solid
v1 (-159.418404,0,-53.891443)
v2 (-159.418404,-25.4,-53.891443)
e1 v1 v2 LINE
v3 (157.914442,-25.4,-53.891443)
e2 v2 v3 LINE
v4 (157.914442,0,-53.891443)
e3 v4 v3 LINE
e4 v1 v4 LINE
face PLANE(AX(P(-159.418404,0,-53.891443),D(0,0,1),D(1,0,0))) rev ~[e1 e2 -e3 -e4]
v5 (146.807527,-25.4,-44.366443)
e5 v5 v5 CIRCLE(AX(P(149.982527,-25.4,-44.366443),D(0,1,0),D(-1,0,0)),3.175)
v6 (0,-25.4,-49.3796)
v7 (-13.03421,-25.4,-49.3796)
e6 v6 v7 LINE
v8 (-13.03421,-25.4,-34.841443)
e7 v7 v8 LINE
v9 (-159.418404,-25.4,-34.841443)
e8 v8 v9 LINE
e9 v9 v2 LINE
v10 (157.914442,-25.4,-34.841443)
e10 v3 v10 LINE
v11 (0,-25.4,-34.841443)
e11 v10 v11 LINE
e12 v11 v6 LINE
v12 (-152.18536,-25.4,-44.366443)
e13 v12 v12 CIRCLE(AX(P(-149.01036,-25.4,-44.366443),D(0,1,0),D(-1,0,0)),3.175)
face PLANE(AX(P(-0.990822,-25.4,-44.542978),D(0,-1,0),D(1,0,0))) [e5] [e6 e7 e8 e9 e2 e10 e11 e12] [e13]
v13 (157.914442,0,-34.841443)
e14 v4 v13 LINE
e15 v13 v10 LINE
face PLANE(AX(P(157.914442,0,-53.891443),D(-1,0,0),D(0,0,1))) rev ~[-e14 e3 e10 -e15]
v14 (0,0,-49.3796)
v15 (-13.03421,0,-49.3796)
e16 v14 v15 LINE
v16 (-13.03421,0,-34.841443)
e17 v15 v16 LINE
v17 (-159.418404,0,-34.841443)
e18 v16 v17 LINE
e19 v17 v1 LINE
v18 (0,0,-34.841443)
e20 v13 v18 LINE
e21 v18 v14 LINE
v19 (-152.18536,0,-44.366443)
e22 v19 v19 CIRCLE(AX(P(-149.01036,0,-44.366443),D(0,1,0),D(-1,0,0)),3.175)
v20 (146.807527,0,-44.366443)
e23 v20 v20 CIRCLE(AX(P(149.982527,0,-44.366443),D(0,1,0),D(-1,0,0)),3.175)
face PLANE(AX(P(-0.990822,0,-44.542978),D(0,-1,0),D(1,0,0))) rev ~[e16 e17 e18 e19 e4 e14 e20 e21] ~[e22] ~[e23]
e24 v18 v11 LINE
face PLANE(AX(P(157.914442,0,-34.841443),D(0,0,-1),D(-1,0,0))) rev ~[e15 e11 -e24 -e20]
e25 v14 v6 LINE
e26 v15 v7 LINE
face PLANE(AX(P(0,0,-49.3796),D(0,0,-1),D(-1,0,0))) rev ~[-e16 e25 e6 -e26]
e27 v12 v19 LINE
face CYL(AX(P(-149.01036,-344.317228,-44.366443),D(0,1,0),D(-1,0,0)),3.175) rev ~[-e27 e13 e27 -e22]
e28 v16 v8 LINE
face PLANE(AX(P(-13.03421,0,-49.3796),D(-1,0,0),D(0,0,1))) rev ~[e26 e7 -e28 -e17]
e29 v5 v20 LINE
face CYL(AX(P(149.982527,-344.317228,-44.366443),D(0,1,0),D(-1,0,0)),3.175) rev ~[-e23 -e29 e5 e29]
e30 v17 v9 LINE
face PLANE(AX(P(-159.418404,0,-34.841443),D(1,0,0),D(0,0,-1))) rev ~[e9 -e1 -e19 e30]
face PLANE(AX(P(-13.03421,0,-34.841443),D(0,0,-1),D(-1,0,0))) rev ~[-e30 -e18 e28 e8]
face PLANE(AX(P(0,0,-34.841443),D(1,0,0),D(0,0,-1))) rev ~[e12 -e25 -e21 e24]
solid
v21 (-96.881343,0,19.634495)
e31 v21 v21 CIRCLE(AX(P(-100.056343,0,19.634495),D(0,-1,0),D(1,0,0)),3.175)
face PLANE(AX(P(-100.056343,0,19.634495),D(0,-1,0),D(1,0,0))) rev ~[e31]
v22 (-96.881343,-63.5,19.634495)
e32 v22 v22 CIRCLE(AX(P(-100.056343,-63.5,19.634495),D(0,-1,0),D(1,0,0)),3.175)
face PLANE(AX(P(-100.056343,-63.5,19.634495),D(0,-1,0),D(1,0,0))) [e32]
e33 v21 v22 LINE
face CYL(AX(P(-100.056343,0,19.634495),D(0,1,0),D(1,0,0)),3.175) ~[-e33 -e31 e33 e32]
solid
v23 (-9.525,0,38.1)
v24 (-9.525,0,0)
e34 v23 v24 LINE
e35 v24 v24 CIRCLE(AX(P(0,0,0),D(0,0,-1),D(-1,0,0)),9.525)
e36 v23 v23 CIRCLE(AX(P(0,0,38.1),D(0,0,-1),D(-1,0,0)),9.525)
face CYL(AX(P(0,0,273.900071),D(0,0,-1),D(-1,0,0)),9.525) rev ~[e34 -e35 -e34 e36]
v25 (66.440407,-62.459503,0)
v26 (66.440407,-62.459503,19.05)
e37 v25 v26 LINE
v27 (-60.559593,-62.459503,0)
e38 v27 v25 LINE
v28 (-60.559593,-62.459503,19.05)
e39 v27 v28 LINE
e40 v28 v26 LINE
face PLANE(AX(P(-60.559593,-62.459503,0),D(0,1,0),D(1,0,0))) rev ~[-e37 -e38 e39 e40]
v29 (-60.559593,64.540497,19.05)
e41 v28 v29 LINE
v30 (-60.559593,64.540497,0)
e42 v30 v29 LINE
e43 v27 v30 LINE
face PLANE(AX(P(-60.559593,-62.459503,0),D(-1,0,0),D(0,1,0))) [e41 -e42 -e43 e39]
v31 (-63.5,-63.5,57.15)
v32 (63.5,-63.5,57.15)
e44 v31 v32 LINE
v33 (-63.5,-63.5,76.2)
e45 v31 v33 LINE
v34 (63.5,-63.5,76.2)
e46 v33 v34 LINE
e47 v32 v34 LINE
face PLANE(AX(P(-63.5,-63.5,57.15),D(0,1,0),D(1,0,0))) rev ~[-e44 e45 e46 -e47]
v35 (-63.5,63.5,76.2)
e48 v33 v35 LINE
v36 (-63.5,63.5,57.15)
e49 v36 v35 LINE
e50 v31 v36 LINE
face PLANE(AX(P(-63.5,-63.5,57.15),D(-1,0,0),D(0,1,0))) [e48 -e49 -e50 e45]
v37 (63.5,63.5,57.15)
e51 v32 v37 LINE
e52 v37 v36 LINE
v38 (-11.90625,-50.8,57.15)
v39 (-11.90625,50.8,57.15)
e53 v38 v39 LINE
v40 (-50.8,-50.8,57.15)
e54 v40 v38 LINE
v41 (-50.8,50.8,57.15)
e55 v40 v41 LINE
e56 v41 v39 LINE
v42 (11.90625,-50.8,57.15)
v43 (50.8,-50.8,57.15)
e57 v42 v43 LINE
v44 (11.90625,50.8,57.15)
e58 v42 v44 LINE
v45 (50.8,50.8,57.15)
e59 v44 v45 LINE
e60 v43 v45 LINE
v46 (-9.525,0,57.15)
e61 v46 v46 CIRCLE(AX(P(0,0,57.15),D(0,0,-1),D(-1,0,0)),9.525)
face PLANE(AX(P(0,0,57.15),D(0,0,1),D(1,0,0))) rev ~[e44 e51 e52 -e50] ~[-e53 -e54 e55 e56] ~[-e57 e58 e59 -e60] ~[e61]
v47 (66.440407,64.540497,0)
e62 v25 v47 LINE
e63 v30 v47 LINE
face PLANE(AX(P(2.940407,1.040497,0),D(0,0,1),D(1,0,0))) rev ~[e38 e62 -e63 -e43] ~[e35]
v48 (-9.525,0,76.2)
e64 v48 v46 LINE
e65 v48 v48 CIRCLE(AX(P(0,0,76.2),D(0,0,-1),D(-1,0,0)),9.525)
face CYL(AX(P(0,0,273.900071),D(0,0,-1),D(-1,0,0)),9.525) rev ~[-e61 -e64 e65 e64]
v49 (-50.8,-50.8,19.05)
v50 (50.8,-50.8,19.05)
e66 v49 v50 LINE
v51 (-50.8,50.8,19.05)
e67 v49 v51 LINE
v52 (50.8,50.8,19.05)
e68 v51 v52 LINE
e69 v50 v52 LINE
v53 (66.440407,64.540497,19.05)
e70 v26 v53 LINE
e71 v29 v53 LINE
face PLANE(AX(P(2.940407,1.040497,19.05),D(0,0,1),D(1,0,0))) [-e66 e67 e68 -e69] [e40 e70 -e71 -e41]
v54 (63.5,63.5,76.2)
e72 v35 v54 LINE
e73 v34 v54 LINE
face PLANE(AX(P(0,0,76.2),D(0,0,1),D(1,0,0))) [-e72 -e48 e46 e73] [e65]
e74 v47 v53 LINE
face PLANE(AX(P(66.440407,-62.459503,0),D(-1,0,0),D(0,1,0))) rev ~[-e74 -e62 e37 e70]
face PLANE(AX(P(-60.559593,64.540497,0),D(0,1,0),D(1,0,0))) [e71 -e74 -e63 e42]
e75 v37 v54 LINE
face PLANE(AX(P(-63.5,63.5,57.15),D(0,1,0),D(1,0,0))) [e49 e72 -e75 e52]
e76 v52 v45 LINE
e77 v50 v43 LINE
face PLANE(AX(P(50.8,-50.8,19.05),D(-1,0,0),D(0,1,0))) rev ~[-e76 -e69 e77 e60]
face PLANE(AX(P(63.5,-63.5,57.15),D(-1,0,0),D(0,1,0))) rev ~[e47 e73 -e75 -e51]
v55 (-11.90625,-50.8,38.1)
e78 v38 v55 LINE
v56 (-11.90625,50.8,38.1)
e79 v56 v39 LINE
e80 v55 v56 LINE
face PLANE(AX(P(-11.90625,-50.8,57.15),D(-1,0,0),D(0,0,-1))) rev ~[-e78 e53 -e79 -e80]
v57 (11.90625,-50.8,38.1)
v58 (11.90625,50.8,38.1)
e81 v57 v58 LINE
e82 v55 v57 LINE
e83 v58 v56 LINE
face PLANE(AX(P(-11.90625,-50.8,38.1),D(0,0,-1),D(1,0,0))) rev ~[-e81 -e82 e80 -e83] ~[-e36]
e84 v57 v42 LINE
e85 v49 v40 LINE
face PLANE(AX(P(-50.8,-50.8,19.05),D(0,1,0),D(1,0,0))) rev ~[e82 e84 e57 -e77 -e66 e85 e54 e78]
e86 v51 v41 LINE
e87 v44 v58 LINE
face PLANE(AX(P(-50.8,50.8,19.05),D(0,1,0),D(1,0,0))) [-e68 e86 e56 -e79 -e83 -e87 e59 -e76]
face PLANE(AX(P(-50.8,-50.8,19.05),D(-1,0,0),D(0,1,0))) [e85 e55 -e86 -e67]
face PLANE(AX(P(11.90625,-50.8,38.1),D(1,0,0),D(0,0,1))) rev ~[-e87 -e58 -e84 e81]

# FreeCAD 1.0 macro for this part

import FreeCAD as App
import Part
import Sketcher
Q = App.Units.Quantity


def add_polygon(sketch, points):
    """Adds a closed chain of lines whose ends are joined by coincident constraints."""
    first, n = sketch.GeometryCount, len(points)
    for a, b in zip(points, points[1:] + points[:1]):
        sketch.addGeometry(Part.LineSegment(App.Vector(*a, 0), App.Vector(*b, 0)), False)
    for i in range(n):
        sketch.addConstraint(Sketcher.Constraint("Coincident", first + i, 2, first + (i + 1) % n, 1))

doc = App.newDocument("Part")
body = doc.addObject("PartDesign::Body", "Body")

sketch1 = doc.addObject("Sketcher::SketchObject", "Sketch")
body.addObject(sketch1)
sketch1.AttachmentSupport = (doc.XY_Plane, [""])
sketch1.MapMode = "FlatFace"
add_polygon(sketch1, [(-61, 65), (-61, -62), (66, -62), (66, 65)])
sketch1.addConstraint([
    Sketcher.Constraint("Vertical", 0),
    Sketcher.Constraint("Horizontal", 1),
    Sketcher.Constraint("Vertical", 2),
    Sketcher.Constraint("Horizontal", 3),
    Sketcher.Constraint("Equal", 3, 0),
    Sketcher.Constraint("DistanceX", 1, 1, 1, 2, Q("5 in")),
    Sketcher.Constraint("DistanceX", 0, 2, -1, 1, Q("60.559593 mm")),
    Sketcher.Constraint("DistanceY", 0, 2, -1, 1, Q("62.459503 mm")),
])
pad1 = doc.addObject("PartDesign::Pad", "Pad")
body.addObject(pad1)
pad1.Profile = sketch1
pad1.Length = Q("0.75 in")

sketch2 = doc.addObject("Sketcher::SketchObject", "Sketch001")
body.addObject(sketch2)
sketch2.AttachmentSupport = (doc.XY_Plane, [""])
sketch2.MapMode = "FlatFace"
sketch2.AttachmentOffset = App.Placement(App.Vector(0, 0, 0.75 * 25.4), App.Rotation())
add_polygon(sketch2, [(-51, 51), (-51, -51), (51, -51), (51, 51)])
sketch2.addConstraint([
    Sketcher.Constraint("Vertical", 0),
    Sketcher.Constraint("Horizontal", 1),
    Sketcher.Constraint("Vertical", 2),
    Sketcher.Constraint("Horizontal", 3),
    Sketcher.Constraint("Symmetric", 0, 2, 2, 2, -1, 1),
    Sketcher.Constraint("Equal", 3, 0),
    Sketcher.Constraint("DistanceX", 1, 1, 1, 2, Q("4 in")),
])
pad2 = doc.addObject("PartDesign::Pad", "Pad001")
body.addObject(pad2)
pad2.Profile = sketch2
pad2.Length = Q("1.5 in")

sketch3 = doc.addObject("Sketcher::SketchObject", "Sketch002")
body.addObject(sketch3)
sketch3.AttachmentSupport = (doc.XY_Plane, [""])
sketch3.MapMode = "FlatFace"
sketch3.AttachmentOffset = App.Placement(App.Vector(0, 0, 2.25 * 25.4), App.Rotation())
add_polygon(sketch3, [(-64, 64), (-64, -64), (64, -64), (64, 64)])
sketch3.addConstraint([
    Sketcher.Constraint("Vertical", 0),
    Sketcher.Constraint("Horizontal", 1),
    Sketcher.Constraint("Vertical", 2),
    Sketcher.Constraint("Horizontal", 3),
    Sketcher.Constraint("Symmetric", 0, 2, 2, 2, -1, 1),
    Sketcher.Constraint("Equal", 3, 0),
    Sketcher.Constraint("DistanceX", 1, 1, 1, 2, Q("5 in")),
])
pad3 = doc.addObject("PartDesign::Pad", "Pad002")
body.addObject(pad3)
pad3.Profile = sketch3
pad3.Length = Q("0.75 in")

sketch4 = doc.addObject("Sketcher::SketchObject", "Sketch003")
body.addObject(sketch4)
sketch4.AttachmentSupport = (doc.XY_Plane, [""])
sketch4.MapMode = "FlatFace"
sketch4.AttachmentOffset = App.Placement(App.Vector(0, 0, 3 * 25.4), App.Rotation())
sketch4.addGeometry(Part.Circle(App.Vector(0, 0, 0), App.Vector(0, 0, 1), 10), False)
sketch4.addConstraint([
    Sketcher.Constraint("Coincident", 0, 3, -1, 1),
    Sketcher.Constraint("Diameter", 0, Q("0.75 in")),
])
doc.recompute()
hole = doc.addObject("PartDesign::Hole", "Hole")
body.addObject(hole)
hole.Profile = sketch4
hole.ThreadType = "None"
hole.Diameter = Q("0.75 in")
hole.DepthType = "ThroughAll"

sketch5 = doc.addObject("Sketcher::SketchObject", "Sketch004")
body.addObject(sketch5)
sketch5.AttachmentSupport = (doc.XZ_Plane, [""])
sketch5.MapMode = "FlatFace"
sketch5.AttachmentOffset = App.Placement(App.Vector(0, 0, 2 * 25.4), App.Rotation())
add_polygon(sketch5, [(-12, 38), (12, 38), (12, 57), (-12, 57)])
sketch5.addConstraint([
    Sketcher.Constraint("Horizontal", 0),
    Sketcher.Constraint("Vertical", 1),
    Sketcher.Constraint("Horizontal", 2),
    Sketcher.Constraint("Vertical", 3),
    Sketcher.Constraint("DistanceY", 1, 1, 1, 2, Q("0.75 in")),
    Sketcher.Constraint("DistanceY", -1, 1, 0, 2, Q("1.5 in")),
    Sketcher.Constraint("DistanceX", 0, 1, 0, 2, Q("0.9375 in")),
    Sketcher.Constraint("DistanceX", -1, 1, 0, 2, Q("0.46875 in")),
])
pocket1 = doc.addObject("PartDesign::Pocket", "Pocket")
body.addObject(pocket1)
pocket1.Profile = sketch5
pocket1.Type = "ThroughAll"
body2 = doc.addObject("PartDesign::Body", "Body001")

sketch6 = doc.addObject("Sketcher::SketchObject", "Sketch005")
body2.addObject(sketch6)
sketch6.AttachmentSupport = (doc.getObject("XZ_Plane001"), [""])
sketch6.MapMode = "FlatFace"
add_polygon(sketch6, [(158, -54), (158, -35), (0, -35), (0, -49), (-13, -49), (-13, -35), (-159, -35), (-159, -54)])
sketch6.addConstraint([
    Sketcher.Constraint("Vertical", 0),
    Sketcher.Constraint("Horizontal", 1),
    Sketcher.Constraint("Vertical", 2),
    Sketcher.Constraint("Horizontal", 3),
    Sketcher.Constraint("Vertical", 4),
    Sketcher.Constraint("Horizontal", 5),
    Sketcher.Constraint("Vertical", 6),
    Sketcher.Constraint("Horizontal", 7),
    Sketcher.Constraint("PointOnObject", 1, 2, -2),
    Sketcher.Constraint("Horizontal", 1, 2, 4, 2),
    Sketcher.Constraint("DistanceY", 0, 1, 0, 2, Q("0.75 in")),
    Sketcher.Constraint("DistanceX", 3, 2, 3, 1, Q("13.03421 mm")),
    Sketcher.Constraint("DistanceY", 2, 2, -1, 1, Q("49.3796 mm")),
    Sketcher.Constraint("DistanceX", 1, 2, 1, 1, Q("157.914442 mm")),
    Sketcher.Constraint("DistanceX", 5, 2, 5, 1, Q("146.384195 mm")),
    Sketcher.Constraint("DistanceY", 2, 2, 2, 1, Q("14.538157 mm")),
])
pad4 = doc.addObject("PartDesign::Pad", "Pad003")
body2.addObject(pad4)
pad4.Profile = sketch6
pad4.Length = Q("1 in")

sketch7 = doc.addObject("Sketcher::SketchObject", "Sketch006")
body2.addObject(sketch7)
sketch7.AttachmentSupport = (doc.getObject("XZ_Plane001"), [""])
sketch7.MapMode = "FlatFace"
sketch7.AttachmentOffset = App.Placement(App.Vector(0, 0, 1 * 25.4), App.Rotation())
sketch7.addGeometry([
    Part.Circle(App.Vector(-149, -44.4, 0), App.Vector(0, 0, 1), 3.2),
    Part.Circle(App.Vector(150, -44.4, 0), App.Vector(0, 0, 1), 3.2),
], False)
sketch7.addConstraint([
    Sketcher.Constraint("Equal", 0, 1),
    Sketcher.Constraint("Horizontal", 0, 3, 1, 3),
    Sketcher.Constraint("Diameter", 0, Q("0.25 in")),
    Sketcher.Constraint("DistanceX", 0, 3, -1, 1, Q("149.01036 mm")),
    Sketcher.Constraint("DistanceY", 0, 3, -1, 1, Q("44.366443 mm")),
    Sketcher.Constraint("DistanceX", -1, 1, 1, 3, Q("149.982527 mm")),
])
doc.recompute()
hole2 = doc.addObject("PartDesign::Hole", "Hole001")
body2.addObject(hole2)
hole2.Profile = sketch7
hole2.ThreadType = "None"
hole2.Diameter = Q("0.25 in")
hole2.DepthType = "ThroughAll"
body3 = doc.addObject("PartDesign::Body", "Body002")

sketch8 = doc.addObject("Sketcher::SketchObject", "Sketch007")
body3.addObject(sketch8)
sketch8.AttachmentSupport = (doc.getObject("XZ_Plane002"), [""])
sketch8.MapMode = "FlatFace"
sketch8.addGeometry(Part.Circle(App.Vector(-100.1, 19.6, 0), App.Vector(0, 0, 1), 3.2), False)
sketch8.addConstraint([
    Sketcher.Constraint("Diameter", 0, Q("0.25 in")),
    Sketcher.Constraint("DistanceX", 0, 3, -1, 1, Q("100.056343 mm")),
    Sketcher.Constraint("DistanceY", -1, 1, 0, 3, Q("19.634495 mm")),
])
pad5 = doc.addObject("PartDesign::Pad", "Pad004")
body3.addObject(pad5)
pad5.Profile = sketch8
pad5.Length = Q("2.5 in")

doc.recompute()
